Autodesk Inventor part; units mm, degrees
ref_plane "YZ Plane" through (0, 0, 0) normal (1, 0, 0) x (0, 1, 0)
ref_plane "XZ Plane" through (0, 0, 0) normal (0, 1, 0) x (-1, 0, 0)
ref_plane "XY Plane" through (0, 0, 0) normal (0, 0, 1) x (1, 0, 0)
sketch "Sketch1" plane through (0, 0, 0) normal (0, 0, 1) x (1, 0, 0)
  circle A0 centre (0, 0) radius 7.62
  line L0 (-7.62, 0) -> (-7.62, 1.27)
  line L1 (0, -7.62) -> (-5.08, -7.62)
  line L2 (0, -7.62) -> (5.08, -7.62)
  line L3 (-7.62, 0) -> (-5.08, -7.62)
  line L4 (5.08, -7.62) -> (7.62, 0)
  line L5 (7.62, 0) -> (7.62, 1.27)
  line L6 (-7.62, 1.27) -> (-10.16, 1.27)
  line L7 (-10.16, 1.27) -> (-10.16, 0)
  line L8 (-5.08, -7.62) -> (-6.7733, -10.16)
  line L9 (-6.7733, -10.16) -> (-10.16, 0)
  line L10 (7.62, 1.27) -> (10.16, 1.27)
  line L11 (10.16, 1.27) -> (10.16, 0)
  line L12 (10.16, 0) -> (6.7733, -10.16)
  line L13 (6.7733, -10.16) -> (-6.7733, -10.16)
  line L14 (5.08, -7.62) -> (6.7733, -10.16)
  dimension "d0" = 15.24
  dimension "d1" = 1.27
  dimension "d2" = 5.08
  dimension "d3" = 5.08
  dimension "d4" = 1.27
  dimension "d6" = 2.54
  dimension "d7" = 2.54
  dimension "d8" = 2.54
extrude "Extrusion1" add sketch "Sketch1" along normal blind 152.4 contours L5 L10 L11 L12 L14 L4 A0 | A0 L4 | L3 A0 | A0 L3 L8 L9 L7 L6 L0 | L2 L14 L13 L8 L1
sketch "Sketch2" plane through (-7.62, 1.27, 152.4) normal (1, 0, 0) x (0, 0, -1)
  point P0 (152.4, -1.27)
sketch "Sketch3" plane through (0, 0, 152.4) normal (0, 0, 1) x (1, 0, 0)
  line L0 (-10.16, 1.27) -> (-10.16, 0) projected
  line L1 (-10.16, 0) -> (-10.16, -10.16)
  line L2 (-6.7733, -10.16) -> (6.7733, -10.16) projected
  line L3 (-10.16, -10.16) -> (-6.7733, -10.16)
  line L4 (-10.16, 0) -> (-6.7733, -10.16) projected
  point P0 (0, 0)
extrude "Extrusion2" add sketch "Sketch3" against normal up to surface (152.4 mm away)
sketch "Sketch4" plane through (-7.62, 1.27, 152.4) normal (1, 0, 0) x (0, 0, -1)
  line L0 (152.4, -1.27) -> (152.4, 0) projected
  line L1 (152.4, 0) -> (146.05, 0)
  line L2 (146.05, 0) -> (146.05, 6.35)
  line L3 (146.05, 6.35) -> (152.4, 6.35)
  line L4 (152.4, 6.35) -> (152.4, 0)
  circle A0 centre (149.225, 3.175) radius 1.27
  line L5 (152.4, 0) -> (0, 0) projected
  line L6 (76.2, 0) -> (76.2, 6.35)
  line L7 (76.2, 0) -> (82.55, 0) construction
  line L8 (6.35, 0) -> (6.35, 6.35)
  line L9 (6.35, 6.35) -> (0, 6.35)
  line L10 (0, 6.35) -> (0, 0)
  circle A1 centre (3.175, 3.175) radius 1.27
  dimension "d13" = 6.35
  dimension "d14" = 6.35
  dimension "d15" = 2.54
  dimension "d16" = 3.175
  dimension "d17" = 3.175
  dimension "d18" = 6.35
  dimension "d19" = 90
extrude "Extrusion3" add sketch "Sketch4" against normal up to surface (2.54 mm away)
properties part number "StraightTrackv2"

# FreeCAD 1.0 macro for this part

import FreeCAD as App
import Part
import Sketcher
from FreeCAD import Vector
Q = App.Units.Quantity


def add_polygon(sketch, points):
    """Adds a closed chain of lines whose ends are joined by coincident constraints."""
    first, n = sketch.GeometryCount, len(points)
    for a, b in zip(points, points[1:] + points[:1]):
        sketch.addGeometry(Part.LineSegment(App.Vector(*a, 0), App.Vector(*b, 0)), False)
    for i in range(n):
        sketch.addConstraint(Sketcher.Constraint("Coincident", first + i, 2, first + (i + 1) % n, 1))

doc = App.newDocument("Part")
body = doc.addObject("PartDesign::Body", "Body")

# Sketch on XY plane
sketch1 = body.newObject("Sketcher::SketchObject", "Sketch")
sketch1.AttachmentSupport = (doc.getObject("XY_Plane"), [""])
sketch1.MapMode = "FlatFace"
add_polygon(sketch1, [(7.6, 1.3), (7.6, 0), (5.1, -7.6), (-5.1, -7.6), (-7.6, 0), (-7.6, 1.3), (-10.2, 1.3), (-10.2, 0), (-6.8, -10.2), (6.8, -10.2), (10.2, 0), (10.2, 1.3)])  # lines 0-11
sketch1.addConstraint(Sketcher.Constraint("Vertical", 0))
sketch1.addConstraint(Sketcher.Constraint("Horizontal", 2))
sketch1.addConstraint(Sketcher.Constraint("Vertical", 4))
sketch1.addConstraint(Sketcher.Constraint("Horizontal", 5))
sketch1.addConstraint(Sketcher.Constraint("Vertical", 6))
sketch1.addConstraint(Sketcher.Constraint("Horizontal", 8))
sketch1.addConstraint(Sketcher.Constraint("Vertical", 10))
sketch1.addConstraint(Sketcher.Constraint("Horizontal", 11))
sketch1.addConstraint(Sketcher.Constraint("Symmetric", 0, 2, 3, 2, -1, 1))
sketch1.addConstraint(Sketcher.Constraint("Symmetric", 6, 2, 9, 2, -1, 1))
sketch1.addConstraint(Sketcher.Constraint("PointOnObject", 0, 2, -1))
sketch1.addConstraint(Sketcher.Constraint("PointOnObject", 6, 2, -1))
sketch1.addConstraint(Sketcher.Constraint("Parallel", 3, 7))
sketch1.addConstraint(Sketcher.Constraint("Parallel", 1, 9))
sketch1.addConstraint(Sketcher.Constraint("Horizontal", 5, 2, 10, 2))
sketch1.addConstraint(Sketcher.Constraint("Equal", 1, 3))
sketch1.addConstraint(Sketcher.Constraint("DistanceX", 5, 2, 5, 1, Q("0.1 in")))
sketch1.addConstraint(Sketcher.Constraint("DistanceY", 0, 2, 0, 1, Q("0.05 in")))
sketch1.addConstraint(Sketcher.Constraint("DistanceX", -1, 1, 1, 2, Q("0.2 in")))
sketch1.addConstraint(Sketcher.Constraint("DistanceX", 1, 2, 0, 2, Q("0.1 in")))
sketch1.addConstraint(Sketcher.Constraint("DistanceY", 7, 2, 2, 2, Q("0.1 in")))
sketch1.addConstraint(Sketcher.Constraint("DistanceY", 1, 2, -1, 1, Q("0.3 in")))
pad1 = body.newObject("PartDesign::Pad", "Pad")
pad1.Profile = sketch1
pad1.Length = Q("6 in")

# Sketch on XY plane
sketch2 = body.newObject("Sketcher::SketchObject", "Sketch001")
sketch2.AttachmentSupport = (doc.getObject("XY_Plane"), [""])
sketch2.MapMode = "FlatFace"
sketch2.AttachmentOffset = App.Placement(Vector(0, 0, 6 * 25.4), App.Rotation())
add_polygon(sketch2, [(-6.8, -10.2), (-10.2, 0), (-10.2, -10.2)])  # lines 0-2
sketch2.addConstraint(Sketcher.Constraint("Vertical", 1))
sketch2.addConstraint(Sketcher.Constraint("Horizontal", 2))
sketch2.addConstraint(Sketcher.Constraint("PointOnObject", 0, 2, -1))
sketch2.addConstraint(Sketcher.Constraint("DistanceY", 1, 2, 1, 1, Q("0.4 in")))
sketch2.addConstraint(Sketcher.Constraint("DistanceX", 0, 2, -1, 1, Q("0.4 in")))
sketch2.addConstraint(Sketcher.Constraint("DistanceX", 2, 1, 2, 2, Q("3.3867 mm")))
pad2 = body.newObject("PartDesign::Pad", "Pad001")
pad2.Profile = sketch2
pad2.Length = Q("6 in")
pad2.Reversed = True

# Sketch on YZ plane
sketch3 = body.newObject("Sketcher::SketchObject", "Sketch002")
sketch3.AttachmentSupport = (doc.getObject("YZ_Plane"), [""])
sketch3.MapMode = "FlatFace"
sketch3.AttachmentOffset = App.Placement(Vector(0, 0, -0.3 * 25.4), App.Rotation())
add_polygon(sketch3, [(1.3, 152.4), (1.3, 146.1), (7.6, 146.1), (7.6, 152.4)])  # lines 0-3
sketch3.addGeometry(Part.Circle(Vector(4.4, 149.2, 0), Vector(0, 0, 1), 1.3), False)  # 4
add_polygon(sketch3, [(1.3, 6.3), (1.3, 0), (7.6, 0), (7.6, 6.3)])  # lines 5-8
sketch3.addGeometry(Part.Circle(Vector(4.4, 3.2, 0), Vector(0, 0, 1), 1.3), False)  # 9
sketch3.addConstraint(Sketcher.Constraint("Vertical", 0))
sketch3.addConstraint(Sketcher.Constraint("Horizontal", 1))
sketch3.addConstraint(Sketcher.Constraint("Vertical", 2))
sketch3.addConstraint(Sketcher.Constraint("Horizontal", 3))
sketch3.addConstraint(Sketcher.Constraint("Vertical", 5))
sketch3.addConstraint(Sketcher.Constraint("Horizontal", 6))
sketch3.addConstraint(Sketcher.Constraint("Vertical", 7))
sketch3.addConstraint(Sketcher.Constraint("Horizontal", 8))
sketch3.addConstraint(Sketcher.Constraint("Equal", 4, 9))
sketch3.addConstraint(Sketcher.Constraint("PointOnObject", 5, 2, -1))
sketch3.addConstraint(Sketcher.Constraint("Vertical", 4, 3, 9, 3))
sketch3.addConstraint(Sketcher.Constraint("Vertical", 3, 2, 5, 2))
sketch3.addConstraint(Sketcher.Constraint("Vertical", 2, 2, 6, 2))
sketch3.addConstraint(Sketcher.Constraint("Equal", 8, 0))
sketch3.addConstraint(Sketcher.Constraint("Equal", 2, 5))
sketch3.addConstraint(Sketcher.Constraint("Diameter", 4, Q("0.1 in")))
sketch3.addConstraint(Sketcher.Constraint("DistanceX", 1, 1, 1, 2, Q("0.25 in")))
sketch3.addConstraint(Sketcher.Constraint("DistanceY", -1, 1, 9, 3, Q("0.125 in")))
sketch3.addConstraint(Sketcher.Constraint("DistanceY", -1, 1, 2, 2, Q("6 in")))
sketch3.addConstraint(Sketcher.Constraint("DistanceX", 0, 2, 4, 3, Q("0.125 in")))
sketch3.addConstraint(Sketcher.Constraint("DistanceY", 0, 2, 4, 3, Q("0.125 in")))
sketch3.addConstraint(Sketcher.Constraint("DistanceX", -1, 1, 1, 2, Q("0.3 in")))
pad3 = body.newObject("PartDesign::Pad", "Pad002")
pad3.Profile = sketch3
pad3.Length = Q("0.1 in")
pad3.Reversed = True

doc.recompute()
